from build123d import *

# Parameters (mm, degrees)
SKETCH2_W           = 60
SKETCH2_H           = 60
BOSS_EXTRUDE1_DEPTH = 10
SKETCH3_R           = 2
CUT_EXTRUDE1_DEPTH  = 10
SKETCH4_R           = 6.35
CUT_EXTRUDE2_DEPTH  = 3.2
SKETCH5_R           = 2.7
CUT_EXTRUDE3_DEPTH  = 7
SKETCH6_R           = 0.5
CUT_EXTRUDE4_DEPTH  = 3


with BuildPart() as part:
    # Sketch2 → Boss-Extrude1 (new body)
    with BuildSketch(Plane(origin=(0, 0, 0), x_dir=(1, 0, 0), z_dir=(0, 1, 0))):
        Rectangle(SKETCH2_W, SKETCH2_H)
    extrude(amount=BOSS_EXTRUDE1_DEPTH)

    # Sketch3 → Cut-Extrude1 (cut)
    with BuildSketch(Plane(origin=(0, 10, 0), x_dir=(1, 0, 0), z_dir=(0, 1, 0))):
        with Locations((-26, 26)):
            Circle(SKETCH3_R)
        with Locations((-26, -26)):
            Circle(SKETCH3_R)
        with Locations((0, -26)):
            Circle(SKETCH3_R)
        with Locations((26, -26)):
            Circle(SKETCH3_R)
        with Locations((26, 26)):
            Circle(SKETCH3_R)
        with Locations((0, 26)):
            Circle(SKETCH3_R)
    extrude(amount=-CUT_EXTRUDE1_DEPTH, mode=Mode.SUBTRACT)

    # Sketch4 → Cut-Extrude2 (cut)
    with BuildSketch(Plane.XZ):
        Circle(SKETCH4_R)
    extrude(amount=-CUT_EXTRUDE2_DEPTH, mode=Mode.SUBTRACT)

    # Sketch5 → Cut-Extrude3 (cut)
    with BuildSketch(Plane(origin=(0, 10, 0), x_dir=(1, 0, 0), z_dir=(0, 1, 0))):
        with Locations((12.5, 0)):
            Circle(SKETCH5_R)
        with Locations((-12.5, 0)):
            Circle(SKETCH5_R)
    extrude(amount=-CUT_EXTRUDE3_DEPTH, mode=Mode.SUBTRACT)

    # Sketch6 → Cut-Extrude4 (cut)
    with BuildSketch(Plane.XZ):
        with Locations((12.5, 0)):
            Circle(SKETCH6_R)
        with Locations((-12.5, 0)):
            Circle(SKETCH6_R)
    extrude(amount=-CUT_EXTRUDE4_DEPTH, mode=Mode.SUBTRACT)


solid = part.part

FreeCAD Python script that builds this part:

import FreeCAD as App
import Part
import Sketcher

V = App.Vector


def add_polygon(sketch, points):
    """Adds a closed chain of lines whose ends are joined by coincident constraints."""
    first, n = sketch.GeometryCount, len(points)
    for a, b in zip(points, points[1:] + points[:1]):
        sketch.addGeometry(Part.LineSegment(App.Vector(*a, 0), App.Vector(*b, 0)), False)
    for i in range(n):
        sketch.addConstraint(Sketcher.Constraint("Coincident", first + i, 2, first + (i + 1) % n, 1))

doc = App.newDocument("Part")
params = doc.addObject("Spreadsheet::Sheet", "Params")
for row, (alias, value) in enumerate([
    ("sketch1_width", "60 mm"),
    ("pad1_length", "10 mm"),
    ("sketch2_diameter", "4 mm"),
    ("pocket1_length", "10 mm"),
    ("sketch3_diameter", "12.7 mm"),
    ("pocket2_length", "3.2 mm"),
    ("sketch4_diameter", "5.4 mm"),
    ("pocket3_length", "7 mm"),
    ("sketch5_diameter", "1 mm"),
    ("pocket4_length", "3 mm"),
], start=1):
    params.set(f"A{row}", alias)
    params.set(f"B{row}", "=" + value)
    params.setAlias(f"B{row}", alias)

body = doc.addObject("PartDesign::Body", "Body")

sketch1 = body.newObject("Sketcher::SketchObject", "Sketch")
sketch1.AttachmentSupport = (doc.getObject("XZ_Plane"), [""])
sketch1.MapMode = "FlatFace"
add_polygon(sketch1, [(-30, -30), (-30, 30), (30, 30), (30, -30)])
sketch1.addConstraint([
    Sketcher.Constraint("Vertical", 0),
    Sketcher.Constraint("Horizontal", 1),
    Sketcher.Constraint("Vertical", 2),
    Sketcher.Constraint("Horizontal", 3),
    Sketcher.Constraint("Symmetric", 0, 2, 2, 2, -1, 1),
    Sketcher.Constraint("Equal", 3, 0),
    Sketcher.Constraint("DistanceX", 1, 1, 1, 2, 60.0),
])
sketch1.setExpression("Constraints[10]", "Params.sketch1_width")
pad1 = body.newObject("PartDesign::Pad", "Pad")
pad1.Profile = sketch1
pad1.setExpression("Length", "Params.pad1_length")
pad1.Reversed = True

sketch2 = body.newObject("Sketcher::SketchObject", "Sketch001")
sketch2.AttachmentSupport = (doc.getObject("XZ_Plane"), [""])
sketch2.MapMode = "FlatFace"
sketch2.AttachmentOffset = App.Placement(V(0, 0, -10), App.Rotation())
sketch2.addGeometry([
    Part.Circle(V(-26, -26, 0), V(0, 0, 1), 2),
    Part.Circle(V(-26, 26, 0), V(0, 0, 1), 2),
    Part.Circle(V(0, 26, 0), V(0, 0, 1), 2),
    Part.Circle(V(26, 26, 0), V(0, 0, 1), 2),
    Part.Circle(V(26, -26, 0), V(0, 0, 1), 2),
    Part.Circle(V(0, -26, 0), V(0, 0, 1), 2),
], False)
sketch2.addConstraint([
    Sketcher.Constraint("Equal", 0, 1),
    Sketcher.Constraint("Equal", 1, 2),
    Sketcher.Constraint("Equal", 2, 3),
    Sketcher.Constraint("Equal", 3, 4),
    Sketcher.Constraint("Equal", 4, 5),
    Sketcher.Constraint("Symmetric", 0, 3, 3, 3, -1, 1),
    Sketcher.Constraint("Symmetric", 1, 3, 4, 3, -1, 1),
    Sketcher.Constraint("Symmetric", 2, 3, 5, 3, -1, 1),
    Sketcher.Constraint("Symmetric", 1, 3, 3, 3, -2),
    Sketcher.Constraint("PointOnObject", 2, 3, -2),
    Sketcher.Constraint("Horizontal", 1, 3, 2, 3),
    Sketcher.Constraint("Diameter", 0, 4.0),
    Sketcher.Constraint("DistanceX", 0, 3, -1, 1, 26.0),
    Sketcher.Constraint("DistanceY", 0, 3, -1, 1, 26.0),
])
sketch2.setExpression("Constraints[11]", "Params.sketch2_diameter")
pocket1 = body.newObject("PartDesign::Pocket", "Pocket")
pocket1.Profile = sketch2
pocket1.setExpression("Length", "Params.pocket1_length")
pocket1.Reversed = True

sketch3 = body.newObject("Sketcher::SketchObject", "Sketch002")
sketch3.AttachmentSupport = (doc.getObject("XZ_Plane"), [""])
sketch3.MapMode = "FlatFace"
sketch3.addGeometry(Part.Circle(V(0, 0, 0), V(0, 0, 1), 6), False)
sketch3.addConstraint([
    Sketcher.Constraint("Coincident", 0, 3, -1, 1),
    Sketcher.Constraint("Diameter", 0, 12.7),
])
sketch3.setExpression("Constraints[1]", "Params.sketch3_diameter")
pocket2 = body.newObject("PartDesign::Pocket", "Pocket001")
pocket2.Profile = sketch3
pocket2.setExpression("Length", "Params.pocket2_length")

sketch4 = body.newObject("Sketcher::SketchObject", "Sketch003")
sketch4.AttachmentSupport = (doc.getObject("XZ_Plane"), [""])
sketch4.MapMode = "FlatFace"
sketch4.AttachmentOffset = App.Placement(V(0, 0, -10), App.Rotation())
sketch4.addGeometry([
    Part.Circle(V(12.5, 0, 0), V(0, 0, 1), 2.7),
    Part.Circle(V(-12.5, 0, 0), V(0, 0, 1), 2.7),
], False)
sketch4.addConstraint([
    Sketcher.Constraint("Equal", 0, 1),
    Sketcher.Constraint("Symmetric", 0, 3, 1, 3, -1, 1),
    Sketcher.Constraint("PointOnObject", 0, 3, -1),
    Sketcher.Constraint("Diameter", 0, 5.4),
    Sketcher.Constraint("DistanceX", 1, 3, 0, 3, 25.0),
])
sketch4.setExpression("Constraints[3]", "Params.sketch4_diameter")
pocket3 = body.newObject("PartDesign::Pocket", "Pocket002")
pocket3.Profile = sketch4
pocket3.setExpression("Length", "Params.pocket3_length")
pocket3.Reversed = True

sketch5 = body.newObject("Sketcher::SketchObject", "Sketch004")
sketch5.AttachmentSupport = (doc.getObject("XZ_Plane"), [""])
sketch5.MapMode = "FlatFace"
sketch5.addGeometry([
    Part.Circle(V(12.5, 0, 0), V(0, 0, 1), 0.5),
    Part.Circle(V(-12.5, 0, 0), V(0, 0, 1), 0.5),
], False)
sketch5.addConstraint([
    Sketcher.Constraint("Equal", 0, 1),
    Sketcher.Constraint("Symmetric", 0, 3, 1, 3, -1, 1),
    Sketcher.Constraint("PointOnObject", 0, 3, -1),
    Sketcher.Constraint("Diameter", 0, 1.0),
    Sketcher.Constraint("DistanceX", 1, 3, 0, 3, 25.0),
])
sketch5.setExpression("Constraints[3]", "Params.sketch5_diameter")
pocket4 = body.newObject("PartDesign::Pocket", "Pocket003")
pocket4.Profile = sketch5
pocket4.setExpression("Length", "Params.pocket4_length")

doc.recompute()
